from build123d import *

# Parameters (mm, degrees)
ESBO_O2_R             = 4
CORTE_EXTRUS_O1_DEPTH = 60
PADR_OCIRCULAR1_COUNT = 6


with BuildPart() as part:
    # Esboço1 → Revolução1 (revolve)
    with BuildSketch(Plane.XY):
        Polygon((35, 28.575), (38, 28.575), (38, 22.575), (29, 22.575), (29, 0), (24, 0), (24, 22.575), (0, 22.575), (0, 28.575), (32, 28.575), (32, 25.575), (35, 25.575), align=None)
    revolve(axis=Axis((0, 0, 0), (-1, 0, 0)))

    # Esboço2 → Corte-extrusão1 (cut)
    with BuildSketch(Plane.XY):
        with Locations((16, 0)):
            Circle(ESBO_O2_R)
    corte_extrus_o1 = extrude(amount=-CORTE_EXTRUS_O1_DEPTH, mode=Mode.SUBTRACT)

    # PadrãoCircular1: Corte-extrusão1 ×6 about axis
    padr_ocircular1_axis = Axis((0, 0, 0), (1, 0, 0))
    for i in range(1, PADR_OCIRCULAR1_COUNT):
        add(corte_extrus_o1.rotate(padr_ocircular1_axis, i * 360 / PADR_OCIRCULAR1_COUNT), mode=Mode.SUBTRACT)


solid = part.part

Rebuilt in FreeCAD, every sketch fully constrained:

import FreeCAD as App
import Part
import Sketcher
Q = App.Units.Quantity


def add_polygon(sketch, points):
    """Adds a closed chain of lines whose ends are joined by coincident constraints."""
    first, n = sketch.GeometryCount, len(points)
    for a, b in zip(points, points[1:] + points[:1]):
        sketch.addGeometry(Part.LineSegment(App.Vector(*a, 0), App.Vector(*b, 0)), False)
    for i in range(n):
        sketch.addConstraint(Sketcher.Constraint("Coincident", first + i, 2, first + (i + 1) % n, 1))

doc = App.newDocument("Part")
body = doc.addObject("PartDesign::Body", "Body")

# Sketch on XY plane
sketch1 = body.newObject("Sketcher::SketchObject", "Sketch")
sketch1.AttachmentSupport = (doc.getObject("XY_Plane"), [""])
sketch1.MapMode = "FlatFace"
add_polygon(sketch1, [(38, 28.6), (35, 28.6), (35, 25.6), (32, 25.6), (32, 28.6), (0, 28.6), (0, 22.6), (24, 22.6), (24, 0), (29, 0), (29, 22.6), (38, 22.6)])  # lines 0-11
sketch1.addConstraint([
    Sketcher.Constraint("Horizontal", 0),
    Sketcher.Constraint("Vertical", 1),
    Sketcher.Constraint("Horizontal", 2),
    Sketcher.Constraint("Vertical", 3),
    Sketcher.Constraint("Horizontal", 4),
    Sketcher.Constraint("Vertical", 5),
    Sketcher.Constraint("Horizontal", 6),
    Sketcher.Constraint("Vertical", 7),
    Sketcher.Constraint("Horizontal", 8),
    Sketcher.Constraint("Vertical", 9),
    Sketcher.Constraint("Horizontal", 10),
    Sketcher.Constraint("Vertical", 11),
    Sketcher.Constraint("PointOnObject", 4, 2, -2),
    Sketcher.Constraint("PointOnObject", 7, 2, -1),
    Sketcher.Constraint("Horizontal", 0, 2, 3, 2),
    Sketcher.Constraint("Horizontal", 6, 2, 9, 2),
    Sketcher.Constraint("Equal", 0, 2),
    Sketcher.Constraint("Equal", 2, 1),
    Sketcher.Constraint("DistanceX", 0, 2, 0, 1, Q("3 mm")),
    Sketcher.Constraint("DistanceX", 4, 2, 4, 1, Q("32 mm")),
    Sketcher.Constraint("DistanceX", 6, 1, 6, 2, Q("24 mm")),
    Sketcher.Constraint("DistanceX", 8, 1, 8, 2, Q("5 mm")),
    Sketcher.Constraint("DistanceY", 5, 2, 5, 1, Q("6 mm")),
    Sketcher.Constraint("DistanceY", 7, 2, 7, 1, Q("22.575 mm")),
])
revolution = body.newObject("PartDesign::Revolution", "Revolution")
revolution.Profile = sketch1
revolution.ReferenceAxis = (sketch1, ["H_Axis"])
revolution.Angle = 360

# Sketch on XY plane
sketch2 = body.newObject("Sketcher::SketchObject", "Sketch001")
sketch2.AttachmentSupport = (doc.getObject("XY_Plane"), [""])
sketch2.MapMode = "FlatFace"
sketch2.addGeometry(Part.Circle(App.Vector(16, 0, 0), App.Vector(0, 0, 1), 4), False)
sketch2.addConstraint([
    Sketcher.Constraint("PointOnObject", 0, 3, -1),
    Sketcher.Constraint("Diameter", 0, Q("8 mm")),
    Sketcher.Constraint("DistanceX", -1, 1, 0, 3, Q("16 mm")),
])
pocket1 = body.newObject("PartDesign::Pocket", "Pocket")
pocket1.Profile = sketch2
pocket1.Length = 60
doc.recompute()

polarpattern = body.newObject("PartDesign::PolarPattern", "PolarPattern")
polarpattern.Originals = [pocket1]
polarpattern.Axis = (doc.getObject("X_Axis"), [""])
polarpattern.Angle = 360
polarpattern.Occurrences = 6
body.Tip = polarpattern

doc.recompute()
